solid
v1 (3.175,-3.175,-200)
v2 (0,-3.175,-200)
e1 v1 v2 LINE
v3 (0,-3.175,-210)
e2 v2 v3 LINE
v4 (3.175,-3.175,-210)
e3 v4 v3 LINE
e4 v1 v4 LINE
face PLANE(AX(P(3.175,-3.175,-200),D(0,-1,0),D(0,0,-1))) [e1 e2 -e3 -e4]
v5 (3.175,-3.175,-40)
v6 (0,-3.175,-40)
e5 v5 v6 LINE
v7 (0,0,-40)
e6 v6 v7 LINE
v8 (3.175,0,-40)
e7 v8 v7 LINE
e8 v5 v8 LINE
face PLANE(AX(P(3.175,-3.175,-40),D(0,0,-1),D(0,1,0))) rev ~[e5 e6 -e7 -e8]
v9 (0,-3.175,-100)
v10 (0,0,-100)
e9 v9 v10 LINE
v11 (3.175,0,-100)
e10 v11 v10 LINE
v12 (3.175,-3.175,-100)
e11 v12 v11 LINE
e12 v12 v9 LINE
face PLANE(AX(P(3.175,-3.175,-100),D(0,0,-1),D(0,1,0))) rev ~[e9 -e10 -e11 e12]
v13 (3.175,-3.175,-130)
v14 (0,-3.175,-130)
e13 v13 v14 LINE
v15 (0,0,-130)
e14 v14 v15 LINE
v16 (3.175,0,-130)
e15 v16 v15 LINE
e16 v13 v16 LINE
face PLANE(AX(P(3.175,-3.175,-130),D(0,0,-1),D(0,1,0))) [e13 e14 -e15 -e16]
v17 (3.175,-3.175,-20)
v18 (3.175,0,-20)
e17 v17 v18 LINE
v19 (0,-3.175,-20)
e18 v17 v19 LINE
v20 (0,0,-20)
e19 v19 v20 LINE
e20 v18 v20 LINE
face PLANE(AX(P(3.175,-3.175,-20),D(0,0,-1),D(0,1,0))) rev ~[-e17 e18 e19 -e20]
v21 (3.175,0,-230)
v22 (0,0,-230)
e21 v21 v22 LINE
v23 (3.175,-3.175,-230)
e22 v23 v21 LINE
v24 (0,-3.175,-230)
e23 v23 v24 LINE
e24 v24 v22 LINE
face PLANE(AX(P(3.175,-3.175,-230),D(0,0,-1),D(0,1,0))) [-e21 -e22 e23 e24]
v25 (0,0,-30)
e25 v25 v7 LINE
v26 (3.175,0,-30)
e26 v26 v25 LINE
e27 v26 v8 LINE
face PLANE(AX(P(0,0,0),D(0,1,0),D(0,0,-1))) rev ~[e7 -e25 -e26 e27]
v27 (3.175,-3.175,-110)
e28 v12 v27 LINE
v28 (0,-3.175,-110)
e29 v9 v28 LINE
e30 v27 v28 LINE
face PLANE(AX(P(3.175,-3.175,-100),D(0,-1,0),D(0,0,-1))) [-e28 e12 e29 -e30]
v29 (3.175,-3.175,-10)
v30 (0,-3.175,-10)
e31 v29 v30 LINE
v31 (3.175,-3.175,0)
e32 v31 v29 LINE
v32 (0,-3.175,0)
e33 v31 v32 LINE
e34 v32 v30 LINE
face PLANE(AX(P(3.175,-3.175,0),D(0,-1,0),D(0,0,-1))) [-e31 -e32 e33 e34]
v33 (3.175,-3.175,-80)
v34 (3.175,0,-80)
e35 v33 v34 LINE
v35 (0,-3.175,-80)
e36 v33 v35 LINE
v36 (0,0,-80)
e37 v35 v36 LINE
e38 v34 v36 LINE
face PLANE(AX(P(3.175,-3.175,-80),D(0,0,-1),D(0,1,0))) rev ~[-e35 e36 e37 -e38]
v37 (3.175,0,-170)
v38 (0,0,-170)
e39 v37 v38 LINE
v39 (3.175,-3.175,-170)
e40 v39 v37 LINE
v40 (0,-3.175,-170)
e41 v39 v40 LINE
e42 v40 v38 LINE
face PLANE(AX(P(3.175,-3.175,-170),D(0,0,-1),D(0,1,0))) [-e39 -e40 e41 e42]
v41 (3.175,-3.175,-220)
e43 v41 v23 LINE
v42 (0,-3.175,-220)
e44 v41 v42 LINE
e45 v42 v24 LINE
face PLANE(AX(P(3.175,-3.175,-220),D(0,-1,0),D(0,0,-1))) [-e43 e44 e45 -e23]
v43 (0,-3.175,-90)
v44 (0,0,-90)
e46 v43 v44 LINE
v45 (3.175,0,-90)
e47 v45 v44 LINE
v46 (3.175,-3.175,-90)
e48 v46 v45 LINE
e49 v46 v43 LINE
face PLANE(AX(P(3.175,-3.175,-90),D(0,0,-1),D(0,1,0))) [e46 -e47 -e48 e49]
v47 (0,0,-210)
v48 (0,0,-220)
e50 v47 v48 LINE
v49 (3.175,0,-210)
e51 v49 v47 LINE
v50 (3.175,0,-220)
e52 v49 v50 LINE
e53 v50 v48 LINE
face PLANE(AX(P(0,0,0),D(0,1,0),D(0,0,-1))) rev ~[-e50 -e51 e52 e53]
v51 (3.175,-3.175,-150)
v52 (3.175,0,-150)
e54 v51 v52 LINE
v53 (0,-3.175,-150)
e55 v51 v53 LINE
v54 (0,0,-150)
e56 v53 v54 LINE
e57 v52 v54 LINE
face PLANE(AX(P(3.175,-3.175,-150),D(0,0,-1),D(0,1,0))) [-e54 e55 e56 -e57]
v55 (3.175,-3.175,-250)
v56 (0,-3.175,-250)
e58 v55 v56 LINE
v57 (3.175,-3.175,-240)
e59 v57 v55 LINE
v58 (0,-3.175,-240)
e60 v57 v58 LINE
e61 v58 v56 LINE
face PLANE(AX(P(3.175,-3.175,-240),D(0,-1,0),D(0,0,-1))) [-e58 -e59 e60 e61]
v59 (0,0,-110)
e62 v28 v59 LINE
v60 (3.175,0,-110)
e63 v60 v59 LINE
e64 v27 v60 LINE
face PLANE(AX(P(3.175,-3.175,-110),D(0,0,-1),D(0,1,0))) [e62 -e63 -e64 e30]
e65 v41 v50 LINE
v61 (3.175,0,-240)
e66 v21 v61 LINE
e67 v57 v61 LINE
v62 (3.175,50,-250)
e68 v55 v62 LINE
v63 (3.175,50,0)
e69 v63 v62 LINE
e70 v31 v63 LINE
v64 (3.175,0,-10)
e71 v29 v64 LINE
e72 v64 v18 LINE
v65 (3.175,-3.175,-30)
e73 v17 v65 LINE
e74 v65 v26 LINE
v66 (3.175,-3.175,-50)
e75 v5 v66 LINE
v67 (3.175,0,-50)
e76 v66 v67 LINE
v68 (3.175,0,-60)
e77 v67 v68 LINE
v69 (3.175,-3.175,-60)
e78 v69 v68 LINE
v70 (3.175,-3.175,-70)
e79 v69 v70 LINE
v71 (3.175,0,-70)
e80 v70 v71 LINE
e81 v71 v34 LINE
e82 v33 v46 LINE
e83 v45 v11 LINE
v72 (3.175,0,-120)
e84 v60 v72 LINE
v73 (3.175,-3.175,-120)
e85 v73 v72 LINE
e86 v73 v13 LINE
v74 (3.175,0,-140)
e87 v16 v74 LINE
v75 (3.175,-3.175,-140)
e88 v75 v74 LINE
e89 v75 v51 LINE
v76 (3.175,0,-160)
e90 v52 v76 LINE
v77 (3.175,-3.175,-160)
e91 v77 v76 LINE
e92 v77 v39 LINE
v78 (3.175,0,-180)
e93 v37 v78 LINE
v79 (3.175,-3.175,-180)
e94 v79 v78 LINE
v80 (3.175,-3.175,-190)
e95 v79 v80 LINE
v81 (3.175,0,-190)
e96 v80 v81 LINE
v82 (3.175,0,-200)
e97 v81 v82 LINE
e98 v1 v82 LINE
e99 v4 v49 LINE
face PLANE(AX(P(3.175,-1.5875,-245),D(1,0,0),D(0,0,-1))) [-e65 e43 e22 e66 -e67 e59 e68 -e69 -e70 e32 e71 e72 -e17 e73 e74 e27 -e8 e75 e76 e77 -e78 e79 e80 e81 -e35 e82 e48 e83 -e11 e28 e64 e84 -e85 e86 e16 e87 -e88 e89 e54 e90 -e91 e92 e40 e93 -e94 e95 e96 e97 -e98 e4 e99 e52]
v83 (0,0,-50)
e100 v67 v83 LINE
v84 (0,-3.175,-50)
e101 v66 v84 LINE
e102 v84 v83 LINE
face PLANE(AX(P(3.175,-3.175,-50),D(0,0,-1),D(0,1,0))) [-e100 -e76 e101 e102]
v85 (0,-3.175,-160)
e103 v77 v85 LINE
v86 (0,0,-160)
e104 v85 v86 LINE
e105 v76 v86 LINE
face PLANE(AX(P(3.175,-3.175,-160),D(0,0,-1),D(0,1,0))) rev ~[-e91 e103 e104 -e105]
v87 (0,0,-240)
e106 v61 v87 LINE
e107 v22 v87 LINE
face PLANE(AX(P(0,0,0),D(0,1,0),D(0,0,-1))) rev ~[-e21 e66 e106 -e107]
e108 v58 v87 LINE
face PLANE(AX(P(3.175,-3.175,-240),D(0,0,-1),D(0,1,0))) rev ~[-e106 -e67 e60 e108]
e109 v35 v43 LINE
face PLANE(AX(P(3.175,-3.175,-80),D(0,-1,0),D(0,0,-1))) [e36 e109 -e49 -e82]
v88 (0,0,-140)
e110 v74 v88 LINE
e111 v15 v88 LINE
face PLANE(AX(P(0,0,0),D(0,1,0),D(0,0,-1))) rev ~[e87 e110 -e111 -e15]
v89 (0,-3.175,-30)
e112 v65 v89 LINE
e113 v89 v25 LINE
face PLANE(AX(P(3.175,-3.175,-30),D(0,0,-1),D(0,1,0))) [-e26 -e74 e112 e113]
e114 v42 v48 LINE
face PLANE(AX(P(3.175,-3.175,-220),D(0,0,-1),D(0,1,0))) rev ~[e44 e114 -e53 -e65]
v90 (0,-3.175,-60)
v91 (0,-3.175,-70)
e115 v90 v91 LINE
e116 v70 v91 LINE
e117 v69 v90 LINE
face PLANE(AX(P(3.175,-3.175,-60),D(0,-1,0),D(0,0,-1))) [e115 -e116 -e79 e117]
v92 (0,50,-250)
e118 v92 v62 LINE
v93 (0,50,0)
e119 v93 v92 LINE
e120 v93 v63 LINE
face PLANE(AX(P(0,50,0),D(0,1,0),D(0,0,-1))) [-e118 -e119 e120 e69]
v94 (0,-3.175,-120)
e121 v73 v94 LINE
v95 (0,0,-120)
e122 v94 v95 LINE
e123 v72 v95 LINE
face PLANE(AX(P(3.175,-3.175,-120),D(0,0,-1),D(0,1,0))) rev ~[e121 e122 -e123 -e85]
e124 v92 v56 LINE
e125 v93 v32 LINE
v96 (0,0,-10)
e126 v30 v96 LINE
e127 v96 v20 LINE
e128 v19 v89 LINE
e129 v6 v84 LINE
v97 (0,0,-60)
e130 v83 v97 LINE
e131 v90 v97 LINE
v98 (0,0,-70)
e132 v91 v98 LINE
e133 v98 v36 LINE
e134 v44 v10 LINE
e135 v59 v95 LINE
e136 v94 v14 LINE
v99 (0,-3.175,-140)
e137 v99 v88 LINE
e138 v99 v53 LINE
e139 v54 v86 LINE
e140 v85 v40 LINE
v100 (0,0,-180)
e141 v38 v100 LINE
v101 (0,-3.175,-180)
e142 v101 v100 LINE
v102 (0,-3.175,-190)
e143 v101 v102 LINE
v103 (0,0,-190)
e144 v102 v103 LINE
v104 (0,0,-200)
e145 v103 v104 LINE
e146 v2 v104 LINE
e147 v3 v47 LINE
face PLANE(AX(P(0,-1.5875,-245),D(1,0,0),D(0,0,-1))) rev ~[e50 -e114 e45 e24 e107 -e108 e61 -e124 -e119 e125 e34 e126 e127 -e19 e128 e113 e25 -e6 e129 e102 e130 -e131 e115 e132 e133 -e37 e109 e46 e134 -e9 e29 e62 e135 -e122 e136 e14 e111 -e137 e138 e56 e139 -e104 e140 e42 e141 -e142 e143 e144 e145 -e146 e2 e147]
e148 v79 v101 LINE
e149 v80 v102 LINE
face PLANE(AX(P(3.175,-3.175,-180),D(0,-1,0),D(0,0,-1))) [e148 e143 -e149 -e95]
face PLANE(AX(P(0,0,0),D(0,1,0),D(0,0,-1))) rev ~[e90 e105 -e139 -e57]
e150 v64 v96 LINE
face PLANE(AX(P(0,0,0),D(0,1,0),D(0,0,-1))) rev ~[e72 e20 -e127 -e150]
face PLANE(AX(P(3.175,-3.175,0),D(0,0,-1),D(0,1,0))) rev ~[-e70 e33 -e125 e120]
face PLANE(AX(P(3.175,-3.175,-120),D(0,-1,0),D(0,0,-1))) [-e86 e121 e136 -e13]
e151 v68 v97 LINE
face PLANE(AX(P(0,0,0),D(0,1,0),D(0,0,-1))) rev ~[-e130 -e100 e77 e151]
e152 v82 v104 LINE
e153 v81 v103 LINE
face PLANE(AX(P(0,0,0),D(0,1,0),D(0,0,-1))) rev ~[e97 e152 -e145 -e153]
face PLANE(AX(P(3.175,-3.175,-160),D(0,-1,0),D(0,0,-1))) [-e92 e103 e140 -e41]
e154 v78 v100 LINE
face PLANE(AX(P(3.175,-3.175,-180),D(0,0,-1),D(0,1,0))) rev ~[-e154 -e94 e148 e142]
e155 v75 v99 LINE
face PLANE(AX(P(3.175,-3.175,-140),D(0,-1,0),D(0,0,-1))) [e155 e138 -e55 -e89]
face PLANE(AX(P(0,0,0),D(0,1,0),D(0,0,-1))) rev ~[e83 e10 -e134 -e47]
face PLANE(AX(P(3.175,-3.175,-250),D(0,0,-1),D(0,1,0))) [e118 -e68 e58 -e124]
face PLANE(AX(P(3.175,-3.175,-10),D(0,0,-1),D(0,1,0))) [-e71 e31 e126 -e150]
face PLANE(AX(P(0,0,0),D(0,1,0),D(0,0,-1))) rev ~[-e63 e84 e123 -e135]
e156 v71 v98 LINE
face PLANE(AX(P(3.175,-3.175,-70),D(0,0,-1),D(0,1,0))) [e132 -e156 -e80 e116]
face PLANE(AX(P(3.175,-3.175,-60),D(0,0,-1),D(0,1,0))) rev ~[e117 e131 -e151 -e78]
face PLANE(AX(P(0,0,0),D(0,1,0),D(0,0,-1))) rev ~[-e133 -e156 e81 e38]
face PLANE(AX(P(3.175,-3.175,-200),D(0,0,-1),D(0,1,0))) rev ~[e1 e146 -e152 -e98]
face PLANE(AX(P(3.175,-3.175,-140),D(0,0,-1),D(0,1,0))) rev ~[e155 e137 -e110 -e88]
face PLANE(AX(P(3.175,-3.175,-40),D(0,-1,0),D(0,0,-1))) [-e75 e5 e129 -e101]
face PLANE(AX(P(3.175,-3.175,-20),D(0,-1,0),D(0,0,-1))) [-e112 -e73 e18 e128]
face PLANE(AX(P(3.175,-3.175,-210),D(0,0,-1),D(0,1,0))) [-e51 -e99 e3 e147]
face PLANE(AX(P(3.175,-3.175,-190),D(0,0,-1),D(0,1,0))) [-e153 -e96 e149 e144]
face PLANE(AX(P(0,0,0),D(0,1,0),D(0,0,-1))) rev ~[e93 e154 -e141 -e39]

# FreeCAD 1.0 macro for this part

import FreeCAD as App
import Part
import Sketcher
from FreeCAD import Vector

doc = App.newDocument("Part")
body = doc.addObject("PartDesign::Body", "Body")

sketch1 = body.newObject("Sketcher::SketchObject", "Sketch")
sketch1.AttachmentSupport = (doc.getObject("YZ_Plane"), [""])
sketch1.MapMode = "FlatFace"
sketch1.addGeometry([
    Part.LineSegment(Vector(50, 0, 0), Vector(0, 0, 0)),
    Part.LineSegment(Vector(0, 0, 0), Vector(0, -250, 0)),
    Part.LineSegment(Vector(0, -250, 0), Vector(50, -250, 0)),
    Part.LineSegment(Vector(50, -250, 0), Vector(50, 0, 0)),
], False)
sketch1.addConstraint([
    Sketcher.Constraint("Coincident", 0, 2, 1, 1),
    Sketcher.Constraint("Coincident", 1, 2, 2, 1),
    Sketcher.Constraint("Coincident", 2, 2, 3, 1),
    Sketcher.Constraint("Coincident", 3, 2, 0, 1),
    Sketcher.Constraint("Horizontal", 0),
    Sketcher.Constraint("Vertical", 1),
    Sketcher.Constraint("Horizontal", 2),
    Sketcher.Constraint("Vertical", 3),
    Sketcher.Constraint("Coincident", 0, 2, -1, 1),
    Sketcher.Constraint("DistanceX", 0, 2, 0, 1, 50.0),
    Sketcher.Constraint("DistanceY", 1, 2, 1, 1, 250.0),
])
pad1 = body.newObject("PartDesign::Pad", "Pad")
pad1.Profile = sketch1
pad1.Length = 3.175

sketch2 = body.newObject("Sketcher::SketchObject", "Sketch001")
sketch2.AttachmentSupport = (doc.getObject("YZ_Plane"), [""])
sketch2.MapMode = "FlatFace"
sketch2.AttachmentOffset = App.Placement(Vector(0, 0, 3.175), App.Rotation())
sketch2.addGeometry([
    Part.LineSegment(Vector(0, 0, 0), Vector(-3.2, 0, 0)),
    Part.LineSegment(Vector(-3.2, 0, 0), Vector(-3.2, -10, 0)),
    Part.LineSegment(Vector(-3.2, -10, 0), Vector(0, -10, 0)),
    Part.LineSegment(Vector(0, -10, 0), Vector(0, 0, 0)),
], False)
sketch2.addConstraint([
    Sketcher.Constraint("Coincident", 0, 2, 1, 1),
    Sketcher.Constraint("Coincident", 1, 2, 2, 1),
    Sketcher.Constraint("Coincident", 2, 2, 3, 1),
    Sketcher.Constraint("Coincident", 3, 2, 0, 1),
    Sketcher.Constraint("Horizontal", 0),
    Sketcher.Constraint("Vertical", 1),
    Sketcher.Constraint("Horizontal", 2),
    Sketcher.Constraint("Vertical", 3),
    Sketcher.Constraint("Coincident", 3, 2, -1, 1),
    Sketcher.Constraint("DistanceY", 1, 2, 1, 1, 10.0),
    Sketcher.Constraint("DistanceX", 0, 2, 0, 1, 3.175),
])
pad2 = body.newObject("PartDesign::Pad", "Pad001")
pad2.Profile = sketch2
pad2.Length = 3.175
pad2.Reversed = True
doc.recompute()

linearpattern = body.newObject("PartDesign::LinearPattern", "LinearPattern")
linearpattern.Originals = [pad2]
linearpattern.Direction = (doc.getObject("Z_Axis"), [""])
linearpattern.Mode = "offset"
linearpattern.Offset = 20
linearpattern.Occurrences = 13
linearpattern.Reversed = True
body.Tip = linearpattern

doc.recompute()
